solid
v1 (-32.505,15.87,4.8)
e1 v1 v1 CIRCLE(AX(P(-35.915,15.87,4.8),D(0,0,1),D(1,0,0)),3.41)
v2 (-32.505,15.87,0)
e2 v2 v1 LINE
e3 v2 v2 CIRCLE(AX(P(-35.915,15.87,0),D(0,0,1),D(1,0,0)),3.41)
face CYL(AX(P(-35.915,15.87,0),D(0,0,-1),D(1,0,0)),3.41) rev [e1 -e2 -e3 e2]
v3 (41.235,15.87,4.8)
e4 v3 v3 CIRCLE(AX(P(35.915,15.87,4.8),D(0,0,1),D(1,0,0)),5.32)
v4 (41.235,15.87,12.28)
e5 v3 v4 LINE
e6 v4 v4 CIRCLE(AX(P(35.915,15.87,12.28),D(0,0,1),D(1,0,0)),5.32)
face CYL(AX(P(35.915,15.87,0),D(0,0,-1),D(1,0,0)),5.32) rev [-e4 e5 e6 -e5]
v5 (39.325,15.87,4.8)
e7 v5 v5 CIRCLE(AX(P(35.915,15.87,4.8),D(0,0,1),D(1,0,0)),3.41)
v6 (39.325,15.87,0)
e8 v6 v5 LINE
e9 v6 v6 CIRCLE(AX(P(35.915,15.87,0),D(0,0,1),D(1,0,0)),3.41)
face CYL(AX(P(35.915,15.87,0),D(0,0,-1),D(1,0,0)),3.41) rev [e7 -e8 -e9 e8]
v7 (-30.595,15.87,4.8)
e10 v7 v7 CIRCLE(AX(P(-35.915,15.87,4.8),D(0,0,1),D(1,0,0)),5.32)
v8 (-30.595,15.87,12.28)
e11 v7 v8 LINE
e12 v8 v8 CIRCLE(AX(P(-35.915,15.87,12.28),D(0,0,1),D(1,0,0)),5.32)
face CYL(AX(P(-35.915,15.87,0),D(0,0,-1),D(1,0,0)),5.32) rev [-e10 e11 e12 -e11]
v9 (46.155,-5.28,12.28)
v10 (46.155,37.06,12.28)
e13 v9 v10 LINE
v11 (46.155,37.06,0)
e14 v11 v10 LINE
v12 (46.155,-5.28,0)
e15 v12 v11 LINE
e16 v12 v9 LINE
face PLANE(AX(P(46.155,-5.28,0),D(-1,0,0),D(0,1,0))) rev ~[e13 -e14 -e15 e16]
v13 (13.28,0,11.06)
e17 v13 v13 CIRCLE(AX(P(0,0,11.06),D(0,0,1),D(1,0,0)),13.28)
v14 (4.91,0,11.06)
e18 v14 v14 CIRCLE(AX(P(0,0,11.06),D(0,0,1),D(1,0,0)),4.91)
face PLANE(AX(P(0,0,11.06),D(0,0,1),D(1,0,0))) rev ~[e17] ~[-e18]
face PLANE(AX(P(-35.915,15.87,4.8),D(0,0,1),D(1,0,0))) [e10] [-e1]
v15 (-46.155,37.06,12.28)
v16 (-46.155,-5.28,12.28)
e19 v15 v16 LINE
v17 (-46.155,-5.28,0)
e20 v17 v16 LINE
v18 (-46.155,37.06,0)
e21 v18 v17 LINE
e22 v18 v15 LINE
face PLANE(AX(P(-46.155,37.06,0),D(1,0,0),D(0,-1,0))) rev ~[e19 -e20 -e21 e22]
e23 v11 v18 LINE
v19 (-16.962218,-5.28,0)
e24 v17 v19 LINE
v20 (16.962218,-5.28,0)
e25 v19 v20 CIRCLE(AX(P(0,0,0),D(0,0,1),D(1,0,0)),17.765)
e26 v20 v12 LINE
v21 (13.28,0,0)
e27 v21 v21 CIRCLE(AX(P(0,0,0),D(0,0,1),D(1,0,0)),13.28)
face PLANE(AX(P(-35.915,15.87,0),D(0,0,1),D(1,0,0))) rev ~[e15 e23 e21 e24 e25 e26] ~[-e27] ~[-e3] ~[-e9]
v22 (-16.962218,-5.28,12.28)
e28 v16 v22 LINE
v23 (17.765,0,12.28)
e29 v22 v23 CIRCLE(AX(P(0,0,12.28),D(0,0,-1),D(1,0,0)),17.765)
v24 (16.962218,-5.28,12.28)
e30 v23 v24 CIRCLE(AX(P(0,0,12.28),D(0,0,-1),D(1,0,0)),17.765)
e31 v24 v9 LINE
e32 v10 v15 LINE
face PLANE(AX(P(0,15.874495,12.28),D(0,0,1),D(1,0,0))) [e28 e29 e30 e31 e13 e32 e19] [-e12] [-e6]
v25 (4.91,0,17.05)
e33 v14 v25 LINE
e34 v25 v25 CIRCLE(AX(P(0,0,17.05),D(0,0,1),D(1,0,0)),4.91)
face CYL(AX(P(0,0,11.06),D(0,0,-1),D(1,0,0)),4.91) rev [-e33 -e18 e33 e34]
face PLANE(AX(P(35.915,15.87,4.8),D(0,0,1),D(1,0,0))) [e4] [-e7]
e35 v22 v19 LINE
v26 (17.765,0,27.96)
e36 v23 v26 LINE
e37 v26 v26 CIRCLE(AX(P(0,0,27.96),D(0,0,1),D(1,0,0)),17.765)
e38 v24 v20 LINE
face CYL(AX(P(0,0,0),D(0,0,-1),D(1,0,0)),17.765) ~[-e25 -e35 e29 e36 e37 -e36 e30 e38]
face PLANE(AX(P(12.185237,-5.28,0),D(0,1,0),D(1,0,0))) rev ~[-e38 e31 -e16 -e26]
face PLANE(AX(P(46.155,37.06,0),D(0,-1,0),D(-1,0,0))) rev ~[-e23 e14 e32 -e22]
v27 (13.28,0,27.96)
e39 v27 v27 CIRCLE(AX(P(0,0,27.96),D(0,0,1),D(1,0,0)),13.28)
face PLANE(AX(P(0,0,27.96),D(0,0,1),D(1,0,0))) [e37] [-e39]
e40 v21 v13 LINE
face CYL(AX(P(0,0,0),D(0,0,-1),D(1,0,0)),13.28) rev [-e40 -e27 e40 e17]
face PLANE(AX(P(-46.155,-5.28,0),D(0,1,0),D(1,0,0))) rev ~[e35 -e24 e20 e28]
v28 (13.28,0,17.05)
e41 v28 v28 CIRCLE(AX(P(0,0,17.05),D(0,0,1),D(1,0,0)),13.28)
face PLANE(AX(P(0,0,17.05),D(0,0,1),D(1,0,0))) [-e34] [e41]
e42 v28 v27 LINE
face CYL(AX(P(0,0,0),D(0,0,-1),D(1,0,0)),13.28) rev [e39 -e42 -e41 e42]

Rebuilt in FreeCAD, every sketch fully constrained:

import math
import FreeCAD as App
import Part
import Sketcher

V = App.Vector

doc = App.newDocument("Part")
params = doc.addObject("Spreadsheet::Sheet", "Params")
for row, (alias, value) in enumerate([
    ("sketch1_diameter", "35.53 mm"),
    ("sketch1_diameter2", "26.56 mm"),
    ("pad1_length", "27.96 mm"),
    ("sketch2_diameter", "26.56 mm"),
    ("sketch2_diameter2", "9.82 mm"),
    ("pad2_length", "5.99 mm"),
    ("sketch3_diameter", "10.64 mm"),
    ("sketch3_radius", "13.28 mm"),
    ("sketch3_width", "92.31 mm"),
    ("sketch3_height", "42.34 mm"),
    ("pad3_length", "12.28 mm"),
    ("sketch4_diameter", "10.64 mm"),
    ("sketch4_diameter2", "6.82 mm"),
    ("pad4_length", "4.8 mm"),
], start=1):
    params.set(f"A{row}", alias)
    params.set(f"B{row}", "=" + value)
    params.setAlias(f"B{row}", alias)

body = doc.addObject("PartDesign::Body", "Body")

# Sketch on XY plane
sketch1 = doc.addObject("Sketcher::SketchObject", "Sketch")
body.addObject(sketch1)
sketch1.AttachmentSupport = (doc.XY_Plane, [""])
sketch1.MapMode = "FlatFace"
sketch1.addGeometry([
    Part.Circle(V(0, 0, 0), V(0, 0, 1), 18),
    Part.Circle(V(0, 0, 0), V(0, 0, 1), 13),
], False)
sketch1.addConstraint([
    Sketcher.Constraint("Coincident", 0, 3, -1, 1),
    Sketcher.Constraint("Coincident", 1, 3, -1, 1),
    Sketcher.Constraint("Diameter", 0, 35.53),
    Sketcher.Constraint("Diameter", 1, 26.56),
])
sketch1.setExpression("Constraints[2]", "Params.sketch1_diameter")
sketch1.setExpression("Constraints[3]", "Params.sketch1_diameter2")
pad1 = doc.addObject("PartDesign::Pad", "Pad")
body.addObject(pad1)
pad1.Profile = sketch1
pad1.setExpression("Length", "Params.pad1_length")

# Sketch on XY plane
sketch2 = doc.addObject("Sketcher::SketchObject", "Sketch001")
body.addObject(sketch2)
sketch2.AttachmentSupport = (doc.XY_Plane, [""])
sketch2.MapMode = "FlatFace"
sketch2.AttachmentOffset = App.Placement(V(0, 0, 11.06), App.Rotation())
sketch2.addGeometry([
    Part.Circle(V(0, 0, 0), V(0, 0, 1), 13.3),
    Part.Circle(V(0, 0, 0), V(0, 0, 1), 4.9),
], False)
sketch2.addConstraint([
    Sketcher.Constraint("Coincident", 0, 3, -1, 1),
    Sketcher.Constraint("Coincident", 1, 3, -1, 1),
    Sketcher.Constraint("Diameter", 0, 26.56),
    Sketcher.Constraint("Diameter", 1, 9.82),
])
sketch2.setExpression("Constraints[2]", "Params.sketch2_diameter")
sketch2.setExpression("Constraints[3]", "Params.sketch2_diameter2")
pad2 = doc.addObject("PartDesign::Pad", "Pad001")
body.addObject(pad2)
pad2.Profile = sketch2
pad2.setExpression("Length", "Params.pad2_length")

# Sketch on XY plane
sketch3 = doc.addObject("Sketcher::SketchObject", "Sketch002")
body.addObject(sketch3)
sketch3.AttachmentSupport = (doc.XY_Plane, [""])
sketch3.MapMode = "FlatFace"
sketch3.addGeometry([
    Part.LineSegment(V(46, -5, 0), V(46, 37, 0)),  # 0
    Part.LineSegment(V(46, 37, 0), V(-46, 37, 0)),  # 1
    Part.LineSegment(V(-46, 37, 0), V(-46, -5, 0)),  # 2
    Part.LineSegment(V(-46, -5, 0), V(-12, -5, 0)),  # 3
    Part.ArcOfCircle(Part.Circle(V(0, 0, 0), V(0, 0, 1), 13), math.radians(-23), math.radians(203)),  # 4
    Part.LineSegment(V(12, -5, 0), V(46, -5, 0)),  # 5
    Part.Circle(V(-36, 16, 0), V(0, 0, 1), 5),  # 6
    Part.Circle(V(36, 16, 0), V(0, 0, 1), 5),  # 7
], False)
sketch3.addConstraint([
    Sketcher.Constraint("Coincident", 0, 2, 1, 1),
    Sketcher.Constraint("Coincident", 1, 2, 2, 1),
    Sketcher.Constraint("Coincident", 2, 2, 3, 1),
    Sketcher.Constraint("Coincident", 3, 2, 4, 2),
    Sketcher.Constraint("Coincident", 4, 1, 5, 1),
    Sketcher.Constraint("Coincident", 5, 2, 0, 1),
    Sketcher.Constraint("Vertical", 0),
    Sketcher.Constraint("Horizontal", 1),
    Sketcher.Constraint("Vertical", 2),
    Sketcher.Constraint("Horizontal", 3),
    Sketcher.Constraint("Horizontal", 5),
    Sketcher.Constraint("Coincident", 4, 3, -1, 1),
    Sketcher.Constraint("Equal", 6, 7),
    Sketcher.Constraint("Symmetric", 6, 3, 7, 3, -2),
    Sketcher.Constraint("Symmetric", 2, 2, 5, 2, -2),
    Sketcher.Constraint("Diameter", 6, 10.64),
    Sketcher.Constraint("Radius", 4, 13.28),
    Sketcher.Constraint("DistanceX", 1, 2, 1, 1, 92.31),
    Sketcher.Constraint("DistanceY", 0, 1, 0, 2, 42.34),
    Sketcher.Constraint("DistanceY", -1, 1, 6, 3, 15.87),
    Sketcher.Constraint("DistanceY", -1, 1, 0, 2, 37.06),
    Sketcher.Constraint("DistanceX", 6, 3, 7, 3, 71.83),
])
sketch3.setExpression("Constraints[15]", "Params.sketch3_diameter")
sketch3.setExpression("Constraints[16]", "Params.sketch3_radius")
sketch3.setExpression("Constraints[17]", "Params.sketch3_width")
sketch3.setExpression("Constraints[18]", "Params.sketch3_height")
pad3 = doc.addObject("PartDesign::Pad", "Pad002")
body.addObject(pad3)
pad3.Profile = sketch3
pad3.setExpression("Length", "Params.pad3_length")

# Sketch on XY plane
sketch4 = doc.addObject("Sketcher::SketchObject", "Sketch003")
body.addObject(sketch4)
sketch4.AttachmentSupport = (doc.XY_Plane, [""])
sketch4.MapMode = "FlatFace"
sketch4.addGeometry([
    Part.Circle(V(-35.9, 15.9, 0), V(0, 0, 1), 5.3),
    Part.Circle(V(-35.9, 15.9, 0), V(0, 0, 1), 3.4),
    Part.Circle(V(35.9, 15.9, 0), V(0, 0, 1), 5.3),
    Part.Circle(V(35.9, 15.9, 0), V(0, 0, 1), 3.4),
], False)
sketch4.addConstraint([
    Sketcher.Constraint("Coincident", 1, 3, 0, 3),
    Sketcher.Constraint("Coincident", 3, 3, 2, 3),
    Sketcher.Constraint("Equal", 0, 2),
    Sketcher.Constraint("Equal", 1, 3),
    Sketcher.Constraint("Symmetric", 0, 3, 2, 3, -2),
    Sketcher.Constraint("Diameter", 0, 10.64),
    Sketcher.Constraint("Diameter", 1, 6.82),
    Sketcher.Constraint("DistanceY", -1, 1, 0, 3, 15.87),
    Sketcher.Constraint("DistanceX", 0, 3, 2, 3, 71.83),
])
sketch4.setExpression("Constraints[5]", "Params.sketch4_diameter")
sketch4.setExpression("Constraints[6]", "Params.sketch4_diameter2")
pad4 = doc.addObject("PartDesign::Pad", "Pad003")
body.addObject(pad4)
pad4.Profile = sketch4
pad4.setExpression("Length", "Params.pad4_length")

doc.recompute()
